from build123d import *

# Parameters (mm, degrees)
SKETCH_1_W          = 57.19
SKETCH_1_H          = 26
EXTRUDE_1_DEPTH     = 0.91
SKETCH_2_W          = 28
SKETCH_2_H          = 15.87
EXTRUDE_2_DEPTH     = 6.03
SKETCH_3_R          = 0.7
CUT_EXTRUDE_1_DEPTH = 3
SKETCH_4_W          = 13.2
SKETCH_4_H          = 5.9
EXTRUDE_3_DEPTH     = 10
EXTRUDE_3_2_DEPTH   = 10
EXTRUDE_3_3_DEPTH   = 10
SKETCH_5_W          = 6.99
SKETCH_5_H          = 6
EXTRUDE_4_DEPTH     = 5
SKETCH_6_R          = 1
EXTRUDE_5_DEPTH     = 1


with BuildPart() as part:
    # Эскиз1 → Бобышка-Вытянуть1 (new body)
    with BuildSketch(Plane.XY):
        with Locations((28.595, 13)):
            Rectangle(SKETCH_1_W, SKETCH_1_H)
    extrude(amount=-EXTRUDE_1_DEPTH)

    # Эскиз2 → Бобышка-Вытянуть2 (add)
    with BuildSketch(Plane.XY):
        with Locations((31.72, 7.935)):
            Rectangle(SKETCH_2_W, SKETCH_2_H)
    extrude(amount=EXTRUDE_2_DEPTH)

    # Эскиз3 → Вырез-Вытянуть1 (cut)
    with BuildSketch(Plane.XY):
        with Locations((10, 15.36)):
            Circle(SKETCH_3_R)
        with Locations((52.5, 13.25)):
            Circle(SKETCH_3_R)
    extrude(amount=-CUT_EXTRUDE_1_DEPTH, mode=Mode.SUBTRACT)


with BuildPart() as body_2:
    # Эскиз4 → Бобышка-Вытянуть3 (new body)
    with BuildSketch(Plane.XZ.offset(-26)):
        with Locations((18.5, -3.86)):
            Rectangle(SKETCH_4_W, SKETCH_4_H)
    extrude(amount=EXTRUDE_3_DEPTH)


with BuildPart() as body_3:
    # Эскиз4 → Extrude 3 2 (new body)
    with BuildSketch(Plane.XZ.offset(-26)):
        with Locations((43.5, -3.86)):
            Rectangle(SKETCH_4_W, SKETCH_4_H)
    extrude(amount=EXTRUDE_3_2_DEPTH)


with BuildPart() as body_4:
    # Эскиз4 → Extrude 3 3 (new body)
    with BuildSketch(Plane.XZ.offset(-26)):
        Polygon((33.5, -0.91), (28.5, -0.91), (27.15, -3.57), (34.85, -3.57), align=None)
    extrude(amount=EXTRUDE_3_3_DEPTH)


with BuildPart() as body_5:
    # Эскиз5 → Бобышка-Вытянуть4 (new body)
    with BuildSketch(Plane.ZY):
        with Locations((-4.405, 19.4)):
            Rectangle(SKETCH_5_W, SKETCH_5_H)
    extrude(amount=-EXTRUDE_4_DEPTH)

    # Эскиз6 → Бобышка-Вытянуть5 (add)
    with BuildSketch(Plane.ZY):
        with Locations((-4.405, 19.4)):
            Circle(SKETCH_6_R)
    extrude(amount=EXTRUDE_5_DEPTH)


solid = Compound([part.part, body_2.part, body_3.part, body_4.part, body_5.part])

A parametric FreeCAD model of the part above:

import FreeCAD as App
import Part
import Sketcher

V = App.Vector


def add_polygon(sketch, points):
    """Adds a closed chain of lines whose ends are joined by coincident constraints."""
    first, n = sketch.GeometryCount, len(points)
    for a, b in zip(points, points[1:] + points[:1]):
        sketch.addGeometry(Part.LineSegment(App.Vector(*a, 0), App.Vector(*b, 0)), False)
    for i in range(n):
        sketch.addConstraint(Sketcher.Constraint("Coincident", first + i, 2, first + (i + 1) % n, 1))

doc = App.newDocument("Part")
body = doc.addObject("PartDesign::Body", "Body")

sketch1 = doc.addObject("Sketcher::SketchObject", "Sketch")
body.addObject(sketch1)
sketch1.AttachmentSupport = (doc.XY_Plane, [""])
sketch1.MapMode = "FlatFace"
add_polygon(sketch1, [(0, 26), (0, 0), (57, 0), (57, 26)])
sketch1.addConstraint([
    Sketcher.Constraint("Vertical", 0),
    Sketcher.Constraint("Horizontal", 1),
    Sketcher.Constraint("Vertical", 2),
    Sketcher.Constraint("Horizontal", 3),
    Sketcher.Constraint("Coincident", 0, 2, -1, 1),
    Sketcher.Constraint("DistanceY", 0, 2, 0, 1, 26.0),
    Sketcher.Constraint("DistanceX", 1, 1, 1, 2, 57.19),
])
pad1 = doc.addObject("PartDesign::Pad", "Pad")
body.addObject(pad1)
pad1.Profile = sketch1
pad1.Length = 0.91
pad1.Reversed = True

sketch2 = doc.addObject("Sketcher::SketchObject", "Sketch001")
body.addObject(sketch2)
sketch2.AttachmentSupport = (doc.XY_Plane, [""])
sketch2.MapMode = "FlatFace"
add_polygon(sketch2, [(18, 16), (18, 0), (46, 0), (46, 16)])
sketch2.addConstraint([
    Sketcher.Constraint("Vertical", 0),
    Sketcher.Constraint("Horizontal", 1),
    Sketcher.Constraint("Vertical", 2),
    Sketcher.Constraint("Horizontal", 3),
    Sketcher.Constraint("PointOnObject", 0, 2, -1),
    Sketcher.Constraint("DistanceX", 1, 1, 1, 2, 28.0),
    Sketcher.Constraint("DistanceY", 0, 2, 0, 1, 15.87),
    Sketcher.Constraint("DistanceX", -1, 1, 0, 2, 17.72),
])
pad2 = doc.addObject("PartDesign::Pad", "Pad001")
body.addObject(pad2)
pad2.Profile = sketch2
pad2.Length = 6.03

sketch3 = doc.addObject("Sketcher::SketchObject", "Sketch002")
body.addObject(sketch3)
sketch3.AttachmentSupport = (doc.XY_Plane, [""])
sketch3.MapMode = "FlatFace"
sketch3.addGeometry([
    Part.Circle(V(10, 15.4, 0), V(0, 0, 1), 0.7),
    Part.Circle(V(52.5, 13.2, 0), V(0, 0, 1), 0.7),
], False)
sketch3.addConstraint([
    Sketcher.Constraint("Equal", 0, 1),
    Sketcher.Constraint("Diameter", 0, 1.4),
    Sketcher.Constraint("DistanceX", -1, 1, 0, 3, 10.0),
    Sketcher.Constraint("DistanceX", -1, 1, 1, 3, 52.5),
    Sketcher.Constraint("DistanceY", -1, 1, 0, 3, 15.36),
    Sketcher.Constraint("DistanceY", -1, 1, 1, 3, 13.25),
])
pocket1 = doc.addObject("PartDesign::Pocket", "Pocket")
body.addObject(pocket1)
pocket1.Profile = sketch3
pocket1.Length = 3
body2 = doc.addObject("PartDesign::Body", "Body001")

sketch4 = doc.addObject("Sketcher::SketchObject", "Sketch003")
body2.addObject(sketch4)
sketch4.AttachmentSupport = (doc.getObject("XZ_Plane001"), [""])
sketch4.MapMode = "FlatFace"
sketch4.AttachmentOffset = App.Placement(V(0, 0, -26), App.Rotation())
add_polygon(sketch4, [(12, -1), (12, -7), (25, -7), (25, -1)])
sketch4.addConstraint([
    Sketcher.Constraint("Vertical", 0),
    Sketcher.Constraint("Horizontal", 1),
    Sketcher.Constraint("Vertical", 2),
    Sketcher.Constraint("Horizontal", 3),
    Sketcher.Constraint("DistanceX", 1, 1, 1, 2, 13.2),
    Sketcher.Constraint("DistanceY", 0, 2, 0, 1, 5.9),
    Sketcher.Constraint("DistanceX", -1, 1, 0, 2, 11.9),
    Sketcher.Constraint("DistanceY", 0, 2, -1, 1, 6.81),
])
pad3 = doc.addObject("PartDesign::Pad", "Pad002")
body2.addObject(pad3)
pad3.Profile = sketch4
pad3.Length = 10
body3 = doc.addObject("PartDesign::Body", "Body002")

sketch5 = doc.addObject("Sketcher::SketchObject", "Sketch004")
body3.addObject(sketch5)
sketch5.AttachmentSupport = (doc.getObject("XZ_Plane002"), [""])
sketch5.MapMode = "FlatFace"
sketch5.AttachmentOffset = App.Placement(V(0, 0, -26), App.Rotation())
add_polygon(sketch5, [(37, -1), (37, -7), (50, -7), (50, -1)])
sketch5.addConstraint([
    Sketcher.Constraint("Vertical", 0),
    Sketcher.Constraint("Horizontal", 1),
    Sketcher.Constraint("Vertical", 2),
    Sketcher.Constraint("Horizontal", 3),
    Sketcher.Constraint("DistanceX", 1, 1, 1, 2, 13.2),
    Sketcher.Constraint("DistanceY", 0, 2, 0, 1, 5.9),
    Sketcher.Constraint("DistanceX", -1, 1, 0, 2, 36.9),
    Sketcher.Constraint("DistanceY", 0, 2, -1, 1, 6.81),
])
pad4 = doc.addObject("PartDesign::Pad", "Pad003")
body3.addObject(pad4)
pad4.Profile = sketch5
pad4.Length = 10
body4 = doc.addObject("PartDesign::Body", "Body003")

sketch6 = doc.addObject("Sketcher::SketchObject", "Sketch005")
body4.addObject(sketch6)
sketch6.AttachmentSupport = (doc.getObject("XZ_Plane003"), [""])
sketch6.MapMode = "FlatFace"
sketch6.AttachmentOffset = App.Placement(V(0, 0, -26), App.Rotation())
add_polygon(sketch6, [(33.5, -0.9), (28.5, -0.9), (27.1, -3.6), (34.9, -3.6)])
sketch6.addConstraint([
    Sketcher.Constraint("Horizontal", 0),
    Sketcher.Constraint("Horizontal", 2),
    Sketcher.Constraint("Equal", 1, 3),
    Sketcher.Constraint("DistanceX", 0, 2, 0, 1, 5.0),
    Sketcher.Constraint("DistanceX", 2, 1, 2, 2, 7.7),
    Sketcher.Constraint("DistanceX", -1, 1, 0, 2, 28.5),
    Sketcher.Constraint("DistanceY", 0, 2, -1, 1, 0.91),
    Sketcher.Constraint("DistanceY", 1, 2, -1, 1, 3.57),
])
pad5 = doc.addObject("PartDesign::Pad", "Pad004")
body4.addObject(pad5)
pad5.Profile = sketch6
pad5.Length = 10
body5 = doc.addObject("PartDesign::Body", "Body004")

sketch7 = doc.addObject("Sketcher::SketchObject", "Sketch006")
body5.addObject(sketch7)
sketch7.AttachmentSupport = (doc.getObject("YZ_Plane004"), [""])
sketch7.MapMode = "FlatFace"
add_polygon(sketch7, [(22, -8), (16, -8), (16, -1), (22, -1)])
sketch7.addConstraint([
    Sketcher.Constraint("Horizontal", 0),
    Sketcher.Constraint("Vertical", 1),
    Sketcher.Constraint("Horizontal", 2),
    Sketcher.Constraint("Vertical", 3),
    Sketcher.Constraint("DistanceX", 0, 2, 0, 1, 6.0),
    Sketcher.Constraint("DistanceY", 1, 1, 1, 2, 6.99),
    Sketcher.Constraint("DistanceX", -1, 1, 0, 2, 16.4),
    Sketcher.Constraint("DistanceY", 0, 2, -1, 1, 7.9),
])
pad6 = doc.addObject("PartDesign::Pad", "Pad005")
body5.addObject(pad6)
pad6.Profile = sketch7
pad6.Length = 5

sketch8 = doc.addObject("Sketcher::SketchObject", "Sketch007")
body5.addObject(sketch8)
sketch8.AttachmentSupport = (doc.getObject("YZ_Plane004"), [""])
sketch8.MapMode = "FlatFace"
sketch8.addGeometry(Part.Circle(V(19.4, -4.4, 0), V(0, 0, 1), 1), False)
sketch8.addConstraint([
    Sketcher.Constraint("Diameter", 0, 2.0),
    Sketcher.Constraint("DistanceX", -1, 1, 0, 3, 19.4),
    Sketcher.Constraint("DistanceY", 0, 3, -1, 1, 4.405),
])
pad7 = doc.addObject("PartDesign::Pad", "Pad006")
body5.addObject(pad7)
pad7.Profile = sketch8
pad7.Length = 1
pad7.Reversed = True

doc.recompute()
